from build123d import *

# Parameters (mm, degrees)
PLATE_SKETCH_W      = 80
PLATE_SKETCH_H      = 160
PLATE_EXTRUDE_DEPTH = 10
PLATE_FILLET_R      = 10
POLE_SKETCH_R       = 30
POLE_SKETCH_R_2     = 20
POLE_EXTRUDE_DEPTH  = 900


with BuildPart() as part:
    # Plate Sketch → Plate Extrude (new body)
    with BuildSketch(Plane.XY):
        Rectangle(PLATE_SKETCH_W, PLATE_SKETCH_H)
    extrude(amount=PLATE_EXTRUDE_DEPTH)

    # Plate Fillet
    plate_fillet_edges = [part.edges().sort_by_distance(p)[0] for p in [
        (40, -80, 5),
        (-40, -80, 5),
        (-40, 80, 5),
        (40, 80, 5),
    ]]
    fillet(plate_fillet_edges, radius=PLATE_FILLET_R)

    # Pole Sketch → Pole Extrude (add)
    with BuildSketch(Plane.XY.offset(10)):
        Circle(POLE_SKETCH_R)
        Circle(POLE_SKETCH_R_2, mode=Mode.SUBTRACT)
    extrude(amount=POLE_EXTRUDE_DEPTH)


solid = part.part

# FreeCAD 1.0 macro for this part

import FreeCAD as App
import Part
import Sketcher


def edges_at(feature, points):
    """Names of the edges that pass closest to the given points."""
    edges = feature.Shape.Edges
    near = lambda p: min(range(len(edges)), key=lambda i: edges[i].distToShape(Part.Vertex(*p))[0])
    return sorted({f"Edge{near(p) + 1}" for p in points})


def add_polygon(sketch, points):
    """Adds a closed chain of lines whose ends are joined by coincident constraints."""
    first, n = sketch.GeometryCount, len(points)
    for a, b in zip(points, points[1:] + points[:1]):
        sketch.addGeometry(Part.LineSegment(App.Vector(*a, 0), App.Vector(*b, 0)), False)
    for i in range(n):
        sketch.addConstraint(Sketcher.Constraint("Coincident", first + i, 2, first + (i + 1) % n, 1))

doc = App.newDocument("Part")
params = doc.addObject("Spreadsheet::Sheet", "Params")
for row, (alias, value) in enumerate([
    ("sketch1_width", "80 mm"),
    ("sketch1_height", "160 mm"),
    ("pad1_length", "10 mm"),
    ("fillet_radius", "10 mm"),
    ("sketch2_diameter", "60 mm"),
    ("sketch2_diameter2", "40 mm"),
    ("pad2_length", "900 mm"),
], start=1):
    params.set(f"A{row}", alias)
    params.set(f"B{row}", "=" + value)
    params.setAlias(f"B{row}", alias)

body = doc.addObject("PartDesign::Body", "Body")

sketch1 = body.newObject("Sketcher::SketchObject", "Sketch")
sketch1.AttachmentSupport = (doc.getObject("XY_Plane"), [""])
sketch1.MapMode = "FlatFace"
add_polygon(sketch1, [(-40, 80), (-40, -80), (40, -80), (40, 80)])
sketch1.addConstraint(Sketcher.Constraint("Vertical", 0))
sketch1.addConstraint(Sketcher.Constraint("Horizontal", 1))
sketch1.addConstraint(Sketcher.Constraint("Vertical", 2))
sketch1.addConstraint(Sketcher.Constraint("Horizontal", 3))
sketch1.addConstraint(Sketcher.Constraint("Symmetric", 0, 2, 2, 2, -1, 1))
sketch1.addConstraint(Sketcher.Constraint("DistanceX", 1, 1, 1, 2, 80.0))
sketch1.addConstraint(Sketcher.Constraint("DistanceY", 0, 2, 0, 1, 160.0))
sketch1.setExpression("Constraints[9]", "Params.sketch1_width")
sketch1.setExpression("Constraints[10]", "Params.sketch1_height")
pad1 = body.newObject("PartDesign::Pad", "Pad")
pad1.Profile = sketch1
pad1.setExpression("Length", "Params.pad1_length")
doc.recompute()

fillet = body.newObject("PartDesign::Fillet", "Fillet")
fillet.Base = (pad1, edges_at(pad1, [
    (40, -80, 5),
    (-40, -80, 5),
    (-40, 80, 5),
    (40, 80, 5),
]))
fillet.setExpression("Radius", "Params.fillet_radius")

sketch2 = body.newObject("Sketcher::SketchObject", "Sketch001")
sketch2.AttachmentSupport = (doc.getObject("XY_Plane"), [""])
sketch2.MapMode = "FlatFace"
sketch2.AttachmentOffset = App.Placement(App.Vector(0, 0, 10), App.Rotation())
sketch2.addGeometry(Part.Circle(App.Vector(0, 0, 0), App.Vector(0, 0, 1), 30), False)
sketch2.addGeometry(Part.Circle(App.Vector(0, 0, 0), App.Vector(0, 0, 1), 20), False)
sketch2.addConstraint(Sketcher.Constraint("Coincident", 0, 3, -1, 1))
sketch2.addConstraint(Sketcher.Constraint("Coincident", 1, 3, -1, 1))
sketch2.addConstraint(Sketcher.Constraint("Diameter", 0, 60.0))
sketch2.addConstraint(Sketcher.Constraint("Diameter", 1, 40.0))
sketch2.setExpression("Constraints[2]", "Params.sketch2_diameter")
sketch2.setExpression("Constraints[3]", "Params.sketch2_diameter2")
pad2 = body.newObject("PartDesign::Pad", "Pad001")
pad2.Profile = sketch2
pad2.setExpression("Length", "Params.pad2_length")

doc.recompute()
